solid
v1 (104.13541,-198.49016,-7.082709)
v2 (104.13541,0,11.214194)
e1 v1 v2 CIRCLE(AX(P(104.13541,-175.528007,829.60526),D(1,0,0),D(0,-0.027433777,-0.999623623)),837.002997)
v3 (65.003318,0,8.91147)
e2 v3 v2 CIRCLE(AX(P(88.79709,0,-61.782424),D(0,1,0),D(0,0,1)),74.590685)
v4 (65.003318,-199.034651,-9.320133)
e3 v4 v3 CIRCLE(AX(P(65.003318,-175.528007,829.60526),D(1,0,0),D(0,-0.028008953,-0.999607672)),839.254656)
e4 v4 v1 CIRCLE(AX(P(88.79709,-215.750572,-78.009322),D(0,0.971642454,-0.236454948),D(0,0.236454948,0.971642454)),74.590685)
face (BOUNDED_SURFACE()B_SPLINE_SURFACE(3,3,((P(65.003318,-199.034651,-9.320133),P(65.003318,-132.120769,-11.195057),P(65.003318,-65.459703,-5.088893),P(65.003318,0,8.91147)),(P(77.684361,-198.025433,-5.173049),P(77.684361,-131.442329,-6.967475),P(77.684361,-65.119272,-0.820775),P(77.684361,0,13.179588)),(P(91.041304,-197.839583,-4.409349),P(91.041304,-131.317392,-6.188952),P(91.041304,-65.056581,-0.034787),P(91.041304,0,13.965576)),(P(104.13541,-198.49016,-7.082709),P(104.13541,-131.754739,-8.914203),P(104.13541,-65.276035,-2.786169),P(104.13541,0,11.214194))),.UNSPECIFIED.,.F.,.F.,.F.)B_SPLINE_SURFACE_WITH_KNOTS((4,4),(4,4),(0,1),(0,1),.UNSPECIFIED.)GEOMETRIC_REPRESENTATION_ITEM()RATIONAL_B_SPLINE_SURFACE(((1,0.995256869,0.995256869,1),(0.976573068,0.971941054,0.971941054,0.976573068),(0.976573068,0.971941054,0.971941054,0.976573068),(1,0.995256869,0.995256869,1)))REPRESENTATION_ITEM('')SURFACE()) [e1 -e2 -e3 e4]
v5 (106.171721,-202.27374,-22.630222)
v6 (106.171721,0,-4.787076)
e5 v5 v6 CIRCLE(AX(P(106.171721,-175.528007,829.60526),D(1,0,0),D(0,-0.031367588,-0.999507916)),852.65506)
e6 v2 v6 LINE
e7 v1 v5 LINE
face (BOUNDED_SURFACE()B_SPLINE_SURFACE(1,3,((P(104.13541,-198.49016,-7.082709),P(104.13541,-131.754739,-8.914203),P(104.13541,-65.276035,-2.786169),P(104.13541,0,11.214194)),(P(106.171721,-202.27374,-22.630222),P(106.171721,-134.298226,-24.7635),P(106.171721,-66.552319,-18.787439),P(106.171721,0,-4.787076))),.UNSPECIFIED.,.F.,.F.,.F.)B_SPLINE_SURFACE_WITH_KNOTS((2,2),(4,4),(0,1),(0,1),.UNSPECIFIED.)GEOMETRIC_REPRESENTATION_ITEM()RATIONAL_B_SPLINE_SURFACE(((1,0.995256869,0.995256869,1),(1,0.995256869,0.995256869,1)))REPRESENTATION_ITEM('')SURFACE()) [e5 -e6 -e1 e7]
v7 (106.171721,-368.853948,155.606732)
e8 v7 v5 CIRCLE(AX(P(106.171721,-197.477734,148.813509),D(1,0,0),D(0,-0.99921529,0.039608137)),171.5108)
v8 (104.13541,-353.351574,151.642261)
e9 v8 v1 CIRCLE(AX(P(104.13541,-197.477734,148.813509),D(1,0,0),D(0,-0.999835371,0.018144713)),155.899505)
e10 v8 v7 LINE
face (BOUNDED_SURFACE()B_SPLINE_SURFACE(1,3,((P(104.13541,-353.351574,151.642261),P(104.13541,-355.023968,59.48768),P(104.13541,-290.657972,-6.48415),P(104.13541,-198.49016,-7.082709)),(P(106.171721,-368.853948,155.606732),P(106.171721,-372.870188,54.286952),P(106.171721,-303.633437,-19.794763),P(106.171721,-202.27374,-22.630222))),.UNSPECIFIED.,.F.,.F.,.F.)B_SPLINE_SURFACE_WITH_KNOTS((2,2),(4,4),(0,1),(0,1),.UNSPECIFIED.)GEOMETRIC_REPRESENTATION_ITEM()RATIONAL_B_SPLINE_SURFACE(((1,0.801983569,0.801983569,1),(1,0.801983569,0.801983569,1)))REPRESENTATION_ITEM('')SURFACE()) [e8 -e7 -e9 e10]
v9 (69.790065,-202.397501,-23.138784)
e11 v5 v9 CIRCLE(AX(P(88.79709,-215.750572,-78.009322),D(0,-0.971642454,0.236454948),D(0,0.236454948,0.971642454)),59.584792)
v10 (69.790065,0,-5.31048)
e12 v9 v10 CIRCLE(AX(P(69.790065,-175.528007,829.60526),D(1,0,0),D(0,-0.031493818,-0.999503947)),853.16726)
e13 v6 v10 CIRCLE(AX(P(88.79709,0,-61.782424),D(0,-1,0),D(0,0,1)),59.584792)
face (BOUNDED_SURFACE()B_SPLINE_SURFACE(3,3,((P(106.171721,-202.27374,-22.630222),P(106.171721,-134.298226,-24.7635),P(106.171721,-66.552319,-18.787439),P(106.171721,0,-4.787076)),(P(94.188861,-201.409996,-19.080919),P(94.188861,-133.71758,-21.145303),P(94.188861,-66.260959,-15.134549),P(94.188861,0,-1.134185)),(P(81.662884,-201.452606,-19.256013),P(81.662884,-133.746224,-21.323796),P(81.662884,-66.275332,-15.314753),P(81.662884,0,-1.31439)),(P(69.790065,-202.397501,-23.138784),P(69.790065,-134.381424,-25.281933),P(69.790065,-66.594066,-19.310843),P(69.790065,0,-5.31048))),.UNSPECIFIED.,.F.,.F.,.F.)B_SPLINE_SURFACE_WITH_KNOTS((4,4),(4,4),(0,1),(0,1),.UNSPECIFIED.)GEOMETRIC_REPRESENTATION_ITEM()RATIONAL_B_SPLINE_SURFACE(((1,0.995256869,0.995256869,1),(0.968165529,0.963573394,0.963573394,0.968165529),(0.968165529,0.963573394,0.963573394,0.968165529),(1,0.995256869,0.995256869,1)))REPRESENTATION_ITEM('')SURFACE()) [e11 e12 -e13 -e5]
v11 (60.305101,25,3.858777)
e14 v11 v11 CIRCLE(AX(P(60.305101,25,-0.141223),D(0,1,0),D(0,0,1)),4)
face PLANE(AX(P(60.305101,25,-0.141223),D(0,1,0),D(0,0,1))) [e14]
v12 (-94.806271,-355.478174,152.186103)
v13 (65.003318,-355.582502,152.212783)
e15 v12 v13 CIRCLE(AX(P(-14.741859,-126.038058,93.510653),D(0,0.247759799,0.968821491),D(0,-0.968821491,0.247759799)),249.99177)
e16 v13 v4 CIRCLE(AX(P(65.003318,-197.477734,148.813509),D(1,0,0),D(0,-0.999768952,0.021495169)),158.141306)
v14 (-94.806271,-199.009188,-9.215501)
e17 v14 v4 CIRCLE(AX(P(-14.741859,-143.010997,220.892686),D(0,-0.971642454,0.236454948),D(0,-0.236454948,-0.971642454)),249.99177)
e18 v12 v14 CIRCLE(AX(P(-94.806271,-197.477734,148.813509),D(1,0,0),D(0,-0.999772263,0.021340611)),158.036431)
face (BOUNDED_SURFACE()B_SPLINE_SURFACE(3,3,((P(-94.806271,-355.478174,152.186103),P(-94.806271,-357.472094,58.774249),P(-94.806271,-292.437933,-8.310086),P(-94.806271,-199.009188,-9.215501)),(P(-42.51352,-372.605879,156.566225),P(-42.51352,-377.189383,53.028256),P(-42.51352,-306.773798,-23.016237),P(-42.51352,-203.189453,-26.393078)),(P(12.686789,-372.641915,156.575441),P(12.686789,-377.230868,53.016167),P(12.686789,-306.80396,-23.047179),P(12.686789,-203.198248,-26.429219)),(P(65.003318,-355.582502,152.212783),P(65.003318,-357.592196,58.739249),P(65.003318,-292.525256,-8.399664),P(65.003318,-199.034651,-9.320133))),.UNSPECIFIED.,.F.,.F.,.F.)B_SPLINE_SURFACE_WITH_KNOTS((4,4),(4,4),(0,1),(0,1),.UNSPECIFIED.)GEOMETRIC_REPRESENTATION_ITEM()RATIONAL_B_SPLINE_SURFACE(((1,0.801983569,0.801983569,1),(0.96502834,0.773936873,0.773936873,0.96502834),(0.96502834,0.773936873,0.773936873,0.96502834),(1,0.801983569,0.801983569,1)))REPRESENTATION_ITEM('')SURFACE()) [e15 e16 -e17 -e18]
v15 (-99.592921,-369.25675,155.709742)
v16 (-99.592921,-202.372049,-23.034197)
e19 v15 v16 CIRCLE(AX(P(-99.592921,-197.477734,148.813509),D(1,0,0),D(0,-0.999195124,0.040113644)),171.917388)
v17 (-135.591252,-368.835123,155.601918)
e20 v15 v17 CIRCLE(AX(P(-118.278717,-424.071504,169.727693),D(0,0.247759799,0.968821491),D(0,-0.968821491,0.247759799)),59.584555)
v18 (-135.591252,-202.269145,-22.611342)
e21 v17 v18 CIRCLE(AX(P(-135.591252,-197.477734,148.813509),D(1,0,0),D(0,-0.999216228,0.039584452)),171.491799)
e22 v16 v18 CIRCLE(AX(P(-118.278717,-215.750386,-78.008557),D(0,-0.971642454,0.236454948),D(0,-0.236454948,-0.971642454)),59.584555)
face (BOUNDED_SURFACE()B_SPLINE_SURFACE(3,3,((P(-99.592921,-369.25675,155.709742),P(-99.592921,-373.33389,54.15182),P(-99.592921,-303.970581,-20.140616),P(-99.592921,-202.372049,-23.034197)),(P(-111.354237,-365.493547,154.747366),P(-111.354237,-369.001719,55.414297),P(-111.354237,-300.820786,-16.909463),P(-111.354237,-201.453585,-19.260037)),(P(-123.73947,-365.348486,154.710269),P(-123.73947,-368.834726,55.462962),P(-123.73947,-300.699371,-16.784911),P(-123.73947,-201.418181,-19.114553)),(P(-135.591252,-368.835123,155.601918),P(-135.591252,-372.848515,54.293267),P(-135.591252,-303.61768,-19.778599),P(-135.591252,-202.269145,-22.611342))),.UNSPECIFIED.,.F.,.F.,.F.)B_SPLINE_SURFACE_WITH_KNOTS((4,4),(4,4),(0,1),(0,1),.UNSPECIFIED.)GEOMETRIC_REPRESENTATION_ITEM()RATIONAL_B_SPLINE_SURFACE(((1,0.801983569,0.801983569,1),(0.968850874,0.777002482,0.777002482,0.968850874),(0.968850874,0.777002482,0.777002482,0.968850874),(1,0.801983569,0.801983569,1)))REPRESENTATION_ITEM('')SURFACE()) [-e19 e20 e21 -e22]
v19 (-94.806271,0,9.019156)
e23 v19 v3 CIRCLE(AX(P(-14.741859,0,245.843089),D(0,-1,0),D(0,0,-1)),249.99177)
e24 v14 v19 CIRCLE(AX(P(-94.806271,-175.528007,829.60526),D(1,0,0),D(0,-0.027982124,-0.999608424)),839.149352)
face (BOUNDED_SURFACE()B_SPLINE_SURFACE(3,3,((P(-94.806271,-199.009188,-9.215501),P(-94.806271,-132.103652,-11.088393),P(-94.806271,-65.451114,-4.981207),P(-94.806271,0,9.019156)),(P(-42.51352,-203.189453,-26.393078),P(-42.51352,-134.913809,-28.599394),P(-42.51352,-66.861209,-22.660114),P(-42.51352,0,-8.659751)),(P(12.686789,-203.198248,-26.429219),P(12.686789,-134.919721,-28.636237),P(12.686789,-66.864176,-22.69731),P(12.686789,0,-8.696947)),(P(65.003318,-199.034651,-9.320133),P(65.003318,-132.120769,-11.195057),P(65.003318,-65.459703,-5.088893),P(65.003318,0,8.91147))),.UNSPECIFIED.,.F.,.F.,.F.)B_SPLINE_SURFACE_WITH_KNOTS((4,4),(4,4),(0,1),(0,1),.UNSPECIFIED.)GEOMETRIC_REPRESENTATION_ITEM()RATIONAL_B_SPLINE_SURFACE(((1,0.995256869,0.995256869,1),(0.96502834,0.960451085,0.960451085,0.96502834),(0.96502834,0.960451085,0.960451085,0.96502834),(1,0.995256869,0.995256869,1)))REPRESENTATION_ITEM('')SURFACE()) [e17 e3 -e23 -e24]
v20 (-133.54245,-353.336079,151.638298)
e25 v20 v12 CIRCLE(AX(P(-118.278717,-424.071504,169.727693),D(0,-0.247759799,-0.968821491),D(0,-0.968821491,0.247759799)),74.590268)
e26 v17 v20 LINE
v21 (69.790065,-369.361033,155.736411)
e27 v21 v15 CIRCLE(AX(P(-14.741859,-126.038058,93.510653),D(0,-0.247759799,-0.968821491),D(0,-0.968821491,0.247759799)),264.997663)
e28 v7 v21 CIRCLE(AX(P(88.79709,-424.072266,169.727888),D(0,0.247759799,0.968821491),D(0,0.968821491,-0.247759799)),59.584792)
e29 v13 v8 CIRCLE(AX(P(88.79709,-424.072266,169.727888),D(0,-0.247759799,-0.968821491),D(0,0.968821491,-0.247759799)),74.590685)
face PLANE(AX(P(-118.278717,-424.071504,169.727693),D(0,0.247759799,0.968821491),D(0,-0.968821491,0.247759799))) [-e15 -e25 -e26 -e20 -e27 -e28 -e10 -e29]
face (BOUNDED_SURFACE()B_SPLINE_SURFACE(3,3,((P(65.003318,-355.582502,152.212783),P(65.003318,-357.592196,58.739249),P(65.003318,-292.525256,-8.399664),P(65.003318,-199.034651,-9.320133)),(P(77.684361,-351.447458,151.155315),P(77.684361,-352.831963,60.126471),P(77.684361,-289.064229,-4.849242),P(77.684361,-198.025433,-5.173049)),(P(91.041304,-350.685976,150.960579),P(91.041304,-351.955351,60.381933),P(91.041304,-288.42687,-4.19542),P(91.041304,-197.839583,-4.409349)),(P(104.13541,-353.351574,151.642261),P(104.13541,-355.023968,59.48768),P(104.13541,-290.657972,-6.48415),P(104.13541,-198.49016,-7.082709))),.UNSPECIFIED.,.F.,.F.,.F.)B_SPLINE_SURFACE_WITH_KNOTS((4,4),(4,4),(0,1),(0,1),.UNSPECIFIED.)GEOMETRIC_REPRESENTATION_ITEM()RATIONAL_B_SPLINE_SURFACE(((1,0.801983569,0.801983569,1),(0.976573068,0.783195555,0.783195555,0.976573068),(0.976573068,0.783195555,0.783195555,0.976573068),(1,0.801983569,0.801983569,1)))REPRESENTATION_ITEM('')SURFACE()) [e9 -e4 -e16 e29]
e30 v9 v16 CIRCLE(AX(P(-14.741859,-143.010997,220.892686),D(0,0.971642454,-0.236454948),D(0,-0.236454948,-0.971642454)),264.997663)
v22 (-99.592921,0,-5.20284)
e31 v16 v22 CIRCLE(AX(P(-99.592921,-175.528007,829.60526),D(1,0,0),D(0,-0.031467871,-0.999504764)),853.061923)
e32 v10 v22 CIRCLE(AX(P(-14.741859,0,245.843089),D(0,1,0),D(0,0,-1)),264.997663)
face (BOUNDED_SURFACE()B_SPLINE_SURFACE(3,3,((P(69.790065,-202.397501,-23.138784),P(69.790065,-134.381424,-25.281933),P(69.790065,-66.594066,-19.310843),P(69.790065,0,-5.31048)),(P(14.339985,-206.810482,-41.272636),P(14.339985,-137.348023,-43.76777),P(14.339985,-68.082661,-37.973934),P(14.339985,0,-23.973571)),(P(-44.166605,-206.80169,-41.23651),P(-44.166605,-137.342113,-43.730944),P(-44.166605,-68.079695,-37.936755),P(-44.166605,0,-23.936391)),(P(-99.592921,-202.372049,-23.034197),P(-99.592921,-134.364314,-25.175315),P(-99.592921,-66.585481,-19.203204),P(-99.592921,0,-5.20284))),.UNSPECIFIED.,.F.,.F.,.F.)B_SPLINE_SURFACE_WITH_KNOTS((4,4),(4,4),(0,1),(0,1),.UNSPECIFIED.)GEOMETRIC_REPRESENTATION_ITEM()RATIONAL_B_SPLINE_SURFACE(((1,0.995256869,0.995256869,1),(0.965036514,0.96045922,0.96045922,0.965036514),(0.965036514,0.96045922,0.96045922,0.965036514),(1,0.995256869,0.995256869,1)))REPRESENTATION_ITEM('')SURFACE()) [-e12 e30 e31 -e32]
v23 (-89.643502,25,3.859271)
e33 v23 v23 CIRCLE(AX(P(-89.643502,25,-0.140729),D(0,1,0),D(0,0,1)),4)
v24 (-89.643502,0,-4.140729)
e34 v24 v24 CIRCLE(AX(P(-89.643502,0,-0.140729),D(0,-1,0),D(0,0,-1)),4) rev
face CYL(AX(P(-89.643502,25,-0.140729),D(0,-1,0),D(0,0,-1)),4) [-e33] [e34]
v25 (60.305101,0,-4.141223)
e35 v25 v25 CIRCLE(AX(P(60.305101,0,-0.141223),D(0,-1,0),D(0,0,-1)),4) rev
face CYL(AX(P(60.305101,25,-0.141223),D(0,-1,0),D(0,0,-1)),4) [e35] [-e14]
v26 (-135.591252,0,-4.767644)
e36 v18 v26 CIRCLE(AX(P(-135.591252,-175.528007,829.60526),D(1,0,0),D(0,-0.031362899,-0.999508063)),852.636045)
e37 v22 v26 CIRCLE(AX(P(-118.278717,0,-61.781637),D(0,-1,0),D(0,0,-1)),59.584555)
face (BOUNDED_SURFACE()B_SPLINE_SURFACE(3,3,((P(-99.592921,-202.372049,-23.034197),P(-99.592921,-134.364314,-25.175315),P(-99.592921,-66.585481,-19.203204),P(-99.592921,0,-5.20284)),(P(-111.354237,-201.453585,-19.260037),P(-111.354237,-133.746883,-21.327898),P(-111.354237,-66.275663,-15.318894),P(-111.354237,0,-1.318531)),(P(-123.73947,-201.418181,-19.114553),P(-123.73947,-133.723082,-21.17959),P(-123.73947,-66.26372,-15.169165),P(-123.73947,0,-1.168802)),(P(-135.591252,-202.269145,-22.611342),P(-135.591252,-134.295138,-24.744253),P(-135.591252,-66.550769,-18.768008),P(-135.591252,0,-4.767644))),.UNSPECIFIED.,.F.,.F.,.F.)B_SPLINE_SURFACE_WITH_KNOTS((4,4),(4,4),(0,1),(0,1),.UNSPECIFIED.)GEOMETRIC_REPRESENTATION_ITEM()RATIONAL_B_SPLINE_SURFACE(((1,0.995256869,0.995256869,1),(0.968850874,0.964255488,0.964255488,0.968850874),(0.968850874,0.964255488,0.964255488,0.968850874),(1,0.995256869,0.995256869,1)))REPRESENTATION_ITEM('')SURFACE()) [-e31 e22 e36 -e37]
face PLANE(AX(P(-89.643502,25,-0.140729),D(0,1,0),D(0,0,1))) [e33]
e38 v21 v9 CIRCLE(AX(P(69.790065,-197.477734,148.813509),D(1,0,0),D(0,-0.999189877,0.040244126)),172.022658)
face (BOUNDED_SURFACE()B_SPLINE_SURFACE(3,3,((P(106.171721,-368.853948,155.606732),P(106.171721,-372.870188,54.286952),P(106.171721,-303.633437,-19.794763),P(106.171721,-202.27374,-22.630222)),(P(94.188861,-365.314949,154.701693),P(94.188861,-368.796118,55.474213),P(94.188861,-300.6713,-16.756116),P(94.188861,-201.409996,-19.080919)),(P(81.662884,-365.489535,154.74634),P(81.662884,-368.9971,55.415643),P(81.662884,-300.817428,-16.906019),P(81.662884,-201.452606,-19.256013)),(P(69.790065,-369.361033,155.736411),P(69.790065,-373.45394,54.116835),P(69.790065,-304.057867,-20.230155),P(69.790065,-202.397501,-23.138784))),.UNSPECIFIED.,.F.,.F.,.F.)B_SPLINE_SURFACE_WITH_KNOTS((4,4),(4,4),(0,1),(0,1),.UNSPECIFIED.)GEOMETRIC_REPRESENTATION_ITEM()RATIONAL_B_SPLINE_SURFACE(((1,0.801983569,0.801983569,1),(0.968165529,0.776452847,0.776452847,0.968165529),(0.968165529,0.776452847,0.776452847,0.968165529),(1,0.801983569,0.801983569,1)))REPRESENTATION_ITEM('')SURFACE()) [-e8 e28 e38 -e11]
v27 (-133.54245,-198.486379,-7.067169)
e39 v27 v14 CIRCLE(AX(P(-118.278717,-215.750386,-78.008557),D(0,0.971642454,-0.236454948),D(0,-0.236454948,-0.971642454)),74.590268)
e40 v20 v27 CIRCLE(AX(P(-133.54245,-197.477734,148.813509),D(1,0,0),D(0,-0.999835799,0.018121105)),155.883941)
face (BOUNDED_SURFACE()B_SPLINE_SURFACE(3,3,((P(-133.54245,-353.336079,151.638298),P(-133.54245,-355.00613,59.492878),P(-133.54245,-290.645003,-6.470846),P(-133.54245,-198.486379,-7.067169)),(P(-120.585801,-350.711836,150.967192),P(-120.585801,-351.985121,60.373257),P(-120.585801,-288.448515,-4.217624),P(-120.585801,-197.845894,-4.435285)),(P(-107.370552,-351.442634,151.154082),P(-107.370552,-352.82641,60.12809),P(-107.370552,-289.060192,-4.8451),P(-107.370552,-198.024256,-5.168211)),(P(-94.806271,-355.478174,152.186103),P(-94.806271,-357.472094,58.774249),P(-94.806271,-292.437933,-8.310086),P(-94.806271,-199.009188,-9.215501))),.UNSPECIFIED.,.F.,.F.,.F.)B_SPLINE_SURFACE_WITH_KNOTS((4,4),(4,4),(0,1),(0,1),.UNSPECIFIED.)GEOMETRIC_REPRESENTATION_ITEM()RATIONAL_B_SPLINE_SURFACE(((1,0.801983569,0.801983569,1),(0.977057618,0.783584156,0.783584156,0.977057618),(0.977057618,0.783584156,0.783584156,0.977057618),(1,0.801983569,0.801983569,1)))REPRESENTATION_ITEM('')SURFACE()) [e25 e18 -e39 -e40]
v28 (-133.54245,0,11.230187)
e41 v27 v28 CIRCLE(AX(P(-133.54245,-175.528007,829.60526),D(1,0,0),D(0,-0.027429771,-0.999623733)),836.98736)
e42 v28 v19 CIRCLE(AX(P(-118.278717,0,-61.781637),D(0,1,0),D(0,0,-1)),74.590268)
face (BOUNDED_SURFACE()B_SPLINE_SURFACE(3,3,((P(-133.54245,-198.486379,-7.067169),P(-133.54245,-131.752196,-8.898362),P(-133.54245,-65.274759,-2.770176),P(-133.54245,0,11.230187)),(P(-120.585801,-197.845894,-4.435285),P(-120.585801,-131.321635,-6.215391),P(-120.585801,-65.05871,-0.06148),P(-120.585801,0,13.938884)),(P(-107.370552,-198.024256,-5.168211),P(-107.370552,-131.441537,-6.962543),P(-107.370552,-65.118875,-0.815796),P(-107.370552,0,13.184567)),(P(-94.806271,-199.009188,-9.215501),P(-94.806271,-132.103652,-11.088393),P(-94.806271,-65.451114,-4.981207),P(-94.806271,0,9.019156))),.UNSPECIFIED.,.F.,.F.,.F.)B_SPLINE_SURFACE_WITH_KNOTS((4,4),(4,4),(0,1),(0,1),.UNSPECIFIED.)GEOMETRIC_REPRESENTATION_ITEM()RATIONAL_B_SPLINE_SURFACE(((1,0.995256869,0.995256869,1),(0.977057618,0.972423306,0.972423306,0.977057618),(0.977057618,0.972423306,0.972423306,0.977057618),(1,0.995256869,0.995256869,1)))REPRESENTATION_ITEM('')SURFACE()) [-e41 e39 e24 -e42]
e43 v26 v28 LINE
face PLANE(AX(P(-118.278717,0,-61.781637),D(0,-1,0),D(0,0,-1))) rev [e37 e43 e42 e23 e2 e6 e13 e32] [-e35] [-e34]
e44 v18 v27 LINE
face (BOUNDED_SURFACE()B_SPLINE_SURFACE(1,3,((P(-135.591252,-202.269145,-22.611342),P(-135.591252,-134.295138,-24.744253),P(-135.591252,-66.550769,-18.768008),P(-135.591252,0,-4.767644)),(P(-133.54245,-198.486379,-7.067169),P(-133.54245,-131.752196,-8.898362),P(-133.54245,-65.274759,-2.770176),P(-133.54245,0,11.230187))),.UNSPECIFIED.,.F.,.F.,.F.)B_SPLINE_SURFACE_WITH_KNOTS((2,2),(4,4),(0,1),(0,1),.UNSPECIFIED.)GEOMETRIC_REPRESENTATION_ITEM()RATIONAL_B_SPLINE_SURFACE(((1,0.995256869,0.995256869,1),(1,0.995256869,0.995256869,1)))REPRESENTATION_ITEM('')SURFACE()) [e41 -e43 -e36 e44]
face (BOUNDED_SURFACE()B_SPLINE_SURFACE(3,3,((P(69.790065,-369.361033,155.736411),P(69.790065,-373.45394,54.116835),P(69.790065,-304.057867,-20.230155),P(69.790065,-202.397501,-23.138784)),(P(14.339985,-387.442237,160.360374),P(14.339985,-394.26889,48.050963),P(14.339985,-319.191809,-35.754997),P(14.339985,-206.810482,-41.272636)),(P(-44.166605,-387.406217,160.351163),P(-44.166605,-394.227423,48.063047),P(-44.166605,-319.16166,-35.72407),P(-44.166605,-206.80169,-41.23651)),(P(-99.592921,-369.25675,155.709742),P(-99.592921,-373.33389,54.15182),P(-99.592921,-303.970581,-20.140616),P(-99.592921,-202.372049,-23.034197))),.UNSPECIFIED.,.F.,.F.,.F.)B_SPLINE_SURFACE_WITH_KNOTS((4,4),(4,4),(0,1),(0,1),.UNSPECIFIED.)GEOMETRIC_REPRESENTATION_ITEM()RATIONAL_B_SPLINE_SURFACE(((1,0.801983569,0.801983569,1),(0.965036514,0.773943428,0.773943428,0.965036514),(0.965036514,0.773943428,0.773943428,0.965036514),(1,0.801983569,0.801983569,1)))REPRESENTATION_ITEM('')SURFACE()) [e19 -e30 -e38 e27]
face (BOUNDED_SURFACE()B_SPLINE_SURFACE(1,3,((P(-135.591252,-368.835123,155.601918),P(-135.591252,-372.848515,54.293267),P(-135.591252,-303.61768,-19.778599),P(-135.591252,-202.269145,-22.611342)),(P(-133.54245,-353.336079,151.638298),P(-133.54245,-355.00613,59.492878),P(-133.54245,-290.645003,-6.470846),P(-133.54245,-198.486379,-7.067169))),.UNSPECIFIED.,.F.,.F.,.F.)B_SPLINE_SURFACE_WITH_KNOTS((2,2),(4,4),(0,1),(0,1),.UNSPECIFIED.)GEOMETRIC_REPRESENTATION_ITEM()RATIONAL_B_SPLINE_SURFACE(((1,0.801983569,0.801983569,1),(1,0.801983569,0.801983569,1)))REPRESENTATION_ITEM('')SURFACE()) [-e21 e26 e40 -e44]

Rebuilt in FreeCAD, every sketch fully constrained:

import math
import FreeCAD as App
import Part
import Sketcher

doc = App.newDocument("Part")
params = doc.addObject("Spreadsheet::Sheet", "Params")
for row, (alias, value) in enumerate([
    ("sketch2_radius", "175 mm"),
    ("sketch3_diameter", "8 mm"),
    ("pad1_length", "25 mm"),
], start=1):
    params.set(f"A{row}", alias)
    params.set(f"B{row}", "=" + value)
    params.setAlias(f"B{row}", alias)

body = doc.addObject("PartDesign::Body", "Body")

# Sketch on XZ plane
sketch1 = body.newObject("Sketcher::SketchObject", "Sketch")
sketch1.AttachmentSupport = (doc.getObject("XZ_Plane"), [""])
sketch1.MapMode = "FlatFace"
sketch1.addGeometry([
    Part.LineSegment(App.Vector(104, 11, 0), App.Vector(106, -5, 0)),  # 0
    Part.ArcOfCircle(Part.Circle(App.Vector(89, -62, 0), App.Vector(0, 0, 1), 60), math.radians(73), math.radians(109)),  # 1
    Part.ArcOfCircle(Part.Circle(App.Vector(-15, 246, 0), App.Vector(0, 0, 1), 265), math.radians(-109), math.radians(-71)),  # 2
    Part.ArcOfCircle(Part.Circle(App.Vector(-118, -62, 0), App.Vector(0, 0, 1), 60), math.radians(72), math.radians(107)),  # 3
    Part.LineSegment(App.Vector(-136, -5, 0), App.Vector(-134, 11, 0)),  # 4
    Part.ArcOfCircle(Part.Circle(App.Vector(-118, -62, 0), App.Vector(0, 0, 1), 75), math.radians(72), math.radians(102)),  # 5
    Part.ArcOfCircle(Part.Circle(App.Vector(-15, 246, 0), App.Vector(0, 0, 1), 250), math.radians(-109), math.radians(-71)),  # 6
    Part.ArcOfCircle(Part.Circle(App.Vector(89, -62, 0), App.Vector(0, 0, 1), 75), math.radians(78), math.radians(109)),  # 7
], False)
sketch1.addConstraint([
    Sketcher.Constraint("Coincident", 0, 2, 1, 1),
    Sketcher.Constraint("Tangent", 1, 2, 2, 2),
    Sketcher.Constraint("Coincident", 2, 1, 3, 1),
    Sketcher.Constraint("Coincident", 3, 2, 4, 1),
    Sketcher.Constraint("Coincident", 4, 2, 5, 2),
    Sketcher.Constraint("Coincident", 5, 1, 6, 1),
    Sketcher.Constraint("Tangent", 6, 2, 7, 2),
    Sketcher.Constraint("Coincident", 7, 1, 0, 1),
    Sketcher.Constraint("Coincident", 5, 3, 3, 3),
    Sketcher.Constraint("Coincident", 6, 3, 2, 3),
    Sketcher.Constraint("Coincident", 7, 3, 1, 3),
    Sketcher.Constraint("Radius", 6, 249.99177),
    Sketcher.Constraint("Radius", 1, 59.584792),
    Sketcher.Constraint("Radius", 2, 264.997663),
    Sketcher.Constraint("Radius", 3, 59.584555),
    Sketcher.Constraint("Radius", 5, 74.590268),
    Sketcher.Constraint("DistanceX", 3, 2, 4, 2, 2.048801),
    Sketcher.Constraint("DistanceY", 3, 2, 5, 1, 13.7868),
    Sketcher.Constraint("Distance", 0, 16.130319),
    Sketcher.Constraint("Distance", 4, 16.128491),
    Sketcher.Constraint("DistanceX", -1, 1, 1, 3, 88.79709),
    Sketcher.Constraint("DistanceX", 2, 3, -1, 1, 14.741859),
    Sketcher.Constraint("DistanceY", -1, 1, 2, 3, 245.843089),
    Sketcher.Constraint("DistanceX", -1, 1, 0, 2, 106.171721),
    Sketcher.Constraint("DistanceX", 3, 2, -1, 1, 135.591252),
])

# Sketch on YZ plane
sketch2 = body.newObject("Sketcher::SketchObject", "Sketch001")
sketch2.AttachmentSupport = (doc.getObject("YZ_Plane"), [""])
sketch2.MapMode = "FlatFace"
sketch2.addGeometry([
    Part.ArcOfCircle(Part.Circle(App.Vector(-197.477734, 148.813509, 0), App.Vector(0, 0, 1), 175), math.radians(177.485754), math.radians(268.15334)),
    Part.ArcOfCircle(Part.Circle(App.Vector(-175.528007, 829.60526, 0), App.Vector(0, 0, 1), 856.145505), math.radians(-91.84666), math.radians(-78.169258)),
], False)
sketch2.addConstraint([
    Sketcher.Constraint("Tangent", 0, 2, 1, 1),
    Sketcher.Constraint("PointOnObject", 1, 2, -2),
    Sketcher.Constraint("Radius", 0, 175.0),
    Sketcher.Constraint("Radius", 1, 856.145505),
    Sketcher.Constraint("DistanceY", -1, 1, 0, 3, 148.813509),
    Sketcher.Constraint("DistanceY", -1, 1, 1, 3, 829.60526),
    Sketcher.Constraint("DistanceX", 0, 1, -1, 1, 372.30927),
    Sketcher.Constraint("DistanceX", 0, 2, -1, 1, 203.117061),
])
sketch2.setExpression("Constraints[2]", "Params.sketch2_radius")
doc.recompute()

additivepipe = body.newObject("PartDesign::AdditivePipe", "AdditivePipe")
additivepipe.Profile = sketch1
additivepipe.Spine = (sketch2, ["Edge1", "Edge2"])

# Sketch on XZ plane
sketch3 = body.newObject("Sketcher::SketchObject", "Sketch002")
sketch3.AttachmentSupport = (doc.getObject("XZ_Plane"), [""])
sketch3.MapMode = "FlatFace"
sketch3.addGeometry([
    Part.Circle(App.Vector(-89.6, -0.1, 0), App.Vector(0, 0, 1), 4),
    Part.Circle(App.Vector(60.3, -0.1, 0), App.Vector(0, 0, 1), 4),
], False)
sketch3.addConstraint([
    Sketcher.Constraint("Equal", 0, 1),
    Sketcher.Constraint("Diameter", 0, 8.0),
    Sketcher.Constraint("DistanceX", -1, 1, 1, 3, 60.305101),
    Sketcher.Constraint("DistanceY", 0, 3, -1, 1, 0.140729),
    Sketcher.Constraint("DistanceX", 0, 3, -1, 1, 89.643502),
    Sketcher.Constraint("DistanceY", 1, 3, -1, 1, 0.141223),
])
sketch3.setExpression("Constraints[1]", "Params.sketch3_diameter")
pad1 = body.newObject("PartDesign::Pad", "Pad")
pad1.Profile = sketch3
pad1.setExpression("Length", "Params.pad1_length")
pad1.Reversed = True

doc.recompute()
